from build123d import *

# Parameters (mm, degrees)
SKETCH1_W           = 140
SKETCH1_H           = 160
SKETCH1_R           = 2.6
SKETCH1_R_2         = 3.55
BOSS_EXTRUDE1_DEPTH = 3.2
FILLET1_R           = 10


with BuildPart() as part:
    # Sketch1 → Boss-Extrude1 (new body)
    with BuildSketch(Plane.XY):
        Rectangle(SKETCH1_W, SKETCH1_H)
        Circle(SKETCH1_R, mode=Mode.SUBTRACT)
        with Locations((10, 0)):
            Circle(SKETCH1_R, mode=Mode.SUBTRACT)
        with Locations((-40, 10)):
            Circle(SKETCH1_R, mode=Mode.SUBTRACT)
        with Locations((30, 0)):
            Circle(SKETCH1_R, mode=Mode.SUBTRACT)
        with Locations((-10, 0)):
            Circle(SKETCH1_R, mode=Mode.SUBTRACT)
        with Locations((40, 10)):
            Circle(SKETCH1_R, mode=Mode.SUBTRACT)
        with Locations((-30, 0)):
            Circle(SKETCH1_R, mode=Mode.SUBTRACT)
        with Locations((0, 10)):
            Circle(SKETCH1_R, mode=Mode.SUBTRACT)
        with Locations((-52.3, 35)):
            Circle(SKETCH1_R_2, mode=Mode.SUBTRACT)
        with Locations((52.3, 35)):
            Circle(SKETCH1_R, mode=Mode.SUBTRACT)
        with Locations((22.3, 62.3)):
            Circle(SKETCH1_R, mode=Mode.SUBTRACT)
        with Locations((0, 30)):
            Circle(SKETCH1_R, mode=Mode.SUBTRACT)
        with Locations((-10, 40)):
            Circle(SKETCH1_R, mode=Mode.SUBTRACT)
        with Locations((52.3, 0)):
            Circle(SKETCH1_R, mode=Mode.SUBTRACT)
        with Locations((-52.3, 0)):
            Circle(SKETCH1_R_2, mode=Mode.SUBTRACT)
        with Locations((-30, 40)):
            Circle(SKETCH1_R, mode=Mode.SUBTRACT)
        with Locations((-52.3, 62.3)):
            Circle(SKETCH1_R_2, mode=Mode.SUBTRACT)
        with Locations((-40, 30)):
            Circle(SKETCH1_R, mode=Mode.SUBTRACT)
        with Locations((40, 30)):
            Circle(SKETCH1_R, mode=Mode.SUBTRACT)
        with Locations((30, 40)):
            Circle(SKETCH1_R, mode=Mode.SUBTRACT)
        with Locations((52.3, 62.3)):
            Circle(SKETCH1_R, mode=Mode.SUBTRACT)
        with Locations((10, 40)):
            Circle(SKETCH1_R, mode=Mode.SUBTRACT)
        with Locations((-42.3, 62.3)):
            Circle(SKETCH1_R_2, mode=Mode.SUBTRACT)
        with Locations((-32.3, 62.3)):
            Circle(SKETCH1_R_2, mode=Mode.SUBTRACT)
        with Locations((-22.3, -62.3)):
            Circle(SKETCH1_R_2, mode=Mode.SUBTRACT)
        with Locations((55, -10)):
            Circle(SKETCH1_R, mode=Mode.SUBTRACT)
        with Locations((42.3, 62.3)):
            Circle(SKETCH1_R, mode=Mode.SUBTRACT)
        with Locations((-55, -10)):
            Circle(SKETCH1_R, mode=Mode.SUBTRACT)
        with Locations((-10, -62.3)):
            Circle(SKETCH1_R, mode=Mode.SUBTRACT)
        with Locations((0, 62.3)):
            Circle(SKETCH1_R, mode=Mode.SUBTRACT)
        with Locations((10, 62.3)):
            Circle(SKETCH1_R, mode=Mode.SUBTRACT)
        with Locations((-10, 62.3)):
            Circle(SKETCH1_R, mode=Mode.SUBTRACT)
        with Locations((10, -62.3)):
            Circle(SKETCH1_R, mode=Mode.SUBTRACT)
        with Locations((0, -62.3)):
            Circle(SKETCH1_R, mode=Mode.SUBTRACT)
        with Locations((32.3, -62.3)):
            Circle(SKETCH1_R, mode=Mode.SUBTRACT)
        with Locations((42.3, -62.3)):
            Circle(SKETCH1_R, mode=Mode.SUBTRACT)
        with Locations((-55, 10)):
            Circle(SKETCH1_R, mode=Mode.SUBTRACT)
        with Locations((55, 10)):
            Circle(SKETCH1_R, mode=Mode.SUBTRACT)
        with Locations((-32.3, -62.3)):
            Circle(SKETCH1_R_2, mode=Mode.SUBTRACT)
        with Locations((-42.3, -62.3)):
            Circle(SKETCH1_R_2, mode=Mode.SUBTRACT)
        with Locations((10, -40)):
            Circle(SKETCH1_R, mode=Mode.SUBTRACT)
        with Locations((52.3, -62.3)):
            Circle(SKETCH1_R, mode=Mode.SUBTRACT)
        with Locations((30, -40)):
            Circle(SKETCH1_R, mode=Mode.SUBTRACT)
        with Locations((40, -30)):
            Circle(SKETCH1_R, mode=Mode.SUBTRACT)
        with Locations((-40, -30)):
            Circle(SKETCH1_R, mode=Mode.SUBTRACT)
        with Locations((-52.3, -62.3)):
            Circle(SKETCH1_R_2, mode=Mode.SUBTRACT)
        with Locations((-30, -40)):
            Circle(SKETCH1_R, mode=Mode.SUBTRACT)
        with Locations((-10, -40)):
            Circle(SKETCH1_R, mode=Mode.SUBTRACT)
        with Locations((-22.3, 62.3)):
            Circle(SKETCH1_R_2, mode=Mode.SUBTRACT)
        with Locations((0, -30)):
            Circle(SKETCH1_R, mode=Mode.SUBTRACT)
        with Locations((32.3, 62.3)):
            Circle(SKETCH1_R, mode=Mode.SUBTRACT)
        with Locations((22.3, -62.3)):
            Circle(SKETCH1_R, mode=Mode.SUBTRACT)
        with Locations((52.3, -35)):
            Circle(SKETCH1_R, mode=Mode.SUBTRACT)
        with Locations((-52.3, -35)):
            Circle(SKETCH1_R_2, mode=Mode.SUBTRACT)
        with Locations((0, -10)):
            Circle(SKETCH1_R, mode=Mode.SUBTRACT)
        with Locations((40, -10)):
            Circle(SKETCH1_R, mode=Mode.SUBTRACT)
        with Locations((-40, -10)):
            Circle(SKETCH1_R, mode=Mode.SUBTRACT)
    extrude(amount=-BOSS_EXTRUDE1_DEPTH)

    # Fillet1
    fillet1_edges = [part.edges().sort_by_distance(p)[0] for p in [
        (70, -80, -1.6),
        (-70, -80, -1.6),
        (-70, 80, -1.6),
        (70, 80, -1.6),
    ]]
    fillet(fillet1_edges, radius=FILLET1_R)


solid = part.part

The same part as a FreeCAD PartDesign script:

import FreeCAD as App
import Part
import Sketcher
from FreeCAD import Vector


def edges_at(feature, points):
    """Names of the edges that pass closest to the given points."""
    edges = feature.Shape.Edges
    near = lambda p: min(range(len(edges)), key=lambda i: edges[i].distToShape(Part.Vertex(*p))[0])
    return sorted({f"Edge{near(p) + 1}" for p in points})


def add_polygon(sketch, points):
    """Adds a closed chain of lines whose ends are joined by coincident constraints."""
    first, n = sketch.GeometryCount, len(points)
    for a, b in zip(points, points[1:] + points[:1]):
        sketch.addGeometry(Part.LineSegment(App.Vector(*a, 0), App.Vector(*b, 0)), False)
    for i in range(n):
        sketch.addConstraint(Sketcher.Constraint("Coincident", first + i, 2, first + (i + 1) % n, 1))

doc = App.newDocument("Part")
body = doc.addObject("PartDesign::Body", "Body")

sketch1 = body.newObject("Sketcher::SketchObject", "Sketch")
sketch1.AttachmentSupport = (doc.getObject("XY_Plane"), [""])
sketch1.MapMode = "FlatFace"
add_polygon(sketch1, [(-70, 80), (-70, -80), (70, -80), (70, 80)])
sketch1.addGeometry(Part.Circle(Vector(-52.3, -62.3, 0), Vector(0, 0, 1), 3.5), False)
sketch1.addGeometry(Part.Circle(Vector(-42.3, -62.3, 0), Vector(0, 0, 1), 3.5), False)
sketch1.addGeometry(Part.Circle(Vector(-32.3, -62.3, 0), Vector(0, 0, 1), 3.5), False)
sketch1.addGeometry(Part.Circle(Vector(-52.3, -35, 0), Vector(0, 0, 1), 3.5), False)
sketch1.addGeometry(Part.Circle(Vector(-30, -40, 0), Vector(0, 0, 1), 2.6), False)
sketch1.addGeometry(Part.Circle(Vector(-22.3, -62.3, 0), Vector(0, 0, 1), 3.5), False)
sketch1.addGeometry(Part.Circle(Vector(-10, -62.3, 0), Vector(0, 0, 1), 2.6), False)
sketch1.addGeometry(Part.Circle(Vector(-10, -40, 0), Vector(0, 0, 1), 2.6), False)
sketch1.addGeometry(Part.Circle(Vector(-40, -30, 0), Vector(0, 0, 1), 2.6), False)
sketch1.addGeometry(Part.Circle(Vector(-55, -10, 0), Vector(0, 0, 1), 2.6), False)
sketch1.addGeometry(Part.Circle(Vector(-40, -10, 0), Vector(0, 0, 1), 2.6), False)
sketch1.addGeometry(Part.Circle(Vector(0, -62.3, 0), Vector(0, 0, 1), 2.6), False)
sketch1.addGeometry(Part.Circle(Vector(10, -62.3, 0), Vector(0, 0, 1), 2.6), False)
sketch1.addGeometry(Part.Circle(Vector(22.3, -62.3, 0), Vector(0, 0, 1), 2.6), False)
sketch1.addGeometry(Part.Circle(Vector(10, -40, 0), Vector(0, 0, 1), 2.6), False)
sketch1.addGeometry(Part.Circle(Vector(32.3, -62.3, 0), Vector(0, 0, 1), 2.6), False)
sketch1.addGeometry(Part.Circle(Vector(42.3, -62.3, 0), Vector(0, 0, 1), 2.6), False)
sketch1.addGeometry(Part.Circle(Vector(52.3, -62.3, 0), Vector(0, 0, 1), 2.6), False)
sketch1.addGeometry(Part.Circle(Vector(30, -40, 0), Vector(0, 0, 1), 2.6), False)
sketch1.addGeometry(Part.Circle(Vector(52.3, -35, 0), Vector(0, 0, 1), 2.6), False)
sketch1.addGeometry(Part.Circle(Vector(0, -30, 0), Vector(0, 0, 1), 2.6), False)
sketch1.addGeometry(Part.Circle(Vector(0, -10, 0), Vector(0, 0, 1), 2.6), False)
sketch1.addGeometry(Part.Circle(Vector(40, -30, 0), Vector(0, 0, 1), 2.6), False)
sketch1.addGeometry(Part.Circle(Vector(40, -10, 0), Vector(0, 0, 1), 2.6), False)
sketch1.addGeometry(Part.Circle(Vector(55, -10, 0), Vector(0, 0, 1), 2.6), False)
sketch1.addGeometry(Part.Circle(Vector(-52.3, 0, 0), Vector(0, 0, 1), 3.5), False)
sketch1.addGeometry(Part.Circle(Vector(-55, 10, 0), Vector(0, 0, 1), 2.6), False)
sketch1.addGeometry(Part.Circle(Vector(-30, 0, 0), Vector(0, 0, 1), 2.6), False)
sketch1.addGeometry(Part.Circle(Vector(-40, 10, 0), Vector(0, 0, 1), 2.6), False)
sketch1.addGeometry(Part.Circle(Vector(-40, 30, 0), Vector(0, 0, 1), 2.6), False)
sketch1.addGeometry(Part.Circle(Vector(-10, 0, 0), Vector(0, 0, 1), 2.6), False)
sketch1.addGeometry(Part.Circle(Vector(-52.3, 35, 0), Vector(0, 0, 1), 3.5), False)
sketch1.addGeometry(Part.Circle(Vector(-30, 40, 0), Vector(0, 0, 1), 2.6), False)
sketch1.addGeometry(Part.Circle(Vector(-52.3, 62.3, 0), Vector(0, 0, 1), 3.5), False)
sketch1.addGeometry(Part.Circle(Vector(-42.3, 62.3, 0), Vector(0, 0, 1), 3.5), False)
sketch1.addGeometry(Part.Circle(Vector(-32.3, 62.3, 0), Vector(0, 0, 1), 3.5), False)
sketch1.addGeometry(Part.Circle(Vector(-10, 40, 0), Vector(0, 0, 1), 2.6), False)
sketch1.addGeometry(Part.Circle(Vector(-22.3, 62.3, 0), Vector(0, 0, 1), 3.5), False)
sketch1.addGeometry(Part.Circle(Vector(-10, 62.3, 0), Vector(0, 0, 1), 2.6), False)
sketch1.addGeometry(Part.Circle(Vector(0, 0, 0), Vector(0, 0, 1), 2.6), False)
sketch1.addGeometry(Part.Circle(Vector(10, 0, 0), Vector(0, 0, 1), 2.6), False)
sketch1.addGeometry(Part.Circle(Vector(0, 10, 0), Vector(0, 0, 1), 2.6), False)
sketch1.addGeometry(Part.Circle(Vector(0, 30, 0), Vector(0, 0, 1), 2.6), False)
sketch1.addGeometry(Part.Circle(Vector(30, 0, 0), Vector(0, 0, 1), 2.6), False)
sketch1.addGeometry(Part.Circle(Vector(40, 10, 0), Vector(0, 0, 1), 2.6), False)
sketch1.addGeometry(Part.Circle(Vector(52.3, 0, 0), Vector(0, 0, 1), 2.6), False)
sketch1.addGeometry(Part.Circle(Vector(55, 10, 0), Vector(0, 0, 1), 2.6), False)
sketch1.addGeometry(Part.Circle(Vector(40, 30, 0), Vector(0, 0, 1), 2.6), False)
sketch1.addGeometry(Part.Circle(Vector(10, 40, 0), Vector(0, 0, 1), 2.6), False)
sketch1.addGeometry(Part.Circle(Vector(0, 62.3, 0), Vector(0, 0, 1), 2.6), False)
sketch1.addGeometry(Part.Circle(Vector(10, 62.3, 0), Vector(0, 0, 1), 2.6), False)
sketch1.addGeometry(Part.Circle(Vector(22.3, 62.3, 0), Vector(0, 0, 1), 2.6), False)
sketch1.addGeometry(Part.Circle(Vector(30, 40, 0), Vector(0, 0, 1), 2.6), False)
sketch1.addGeometry(Part.Circle(Vector(52.3, 35, 0), Vector(0, 0, 1), 2.6), False)
sketch1.addGeometry(Part.Circle(Vector(32.3, 62.3, 0), Vector(0, 0, 1), 2.6), False)
sketch1.addGeometry(Part.Circle(Vector(42.3, 62.3, 0), Vector(0, 0, 1), 2.6), False)
sketch1.addGeometry(Part.Circle(Vector(52.3, 62.3, 0), Vector(0, 0, 1), 2.6), False)
sketch1.addConstraint(Sketcher.Constraint("Vertical", 0))
sketch1.addConstraint(Sketcher.Constraint("Horizontal", 1))
sketch1.addConstraint(Sketcher.Constraint("Vertical", 2))
sketch1.addConstraint(Sketcher.Constraint("Horizontal", 3))
sketch1.addConstraint(Sketcher.Constraint("Coincident", 43, 3, -1, 1))
sketch1.addConstraint(Sketcher.Constraint("Equal", 4, 5))
sketch1.addConstraint(Sketcher.Constraint("Equal", 5, 6))
sketch1.addConstraint(Sketcher.Constraint("Equal", 6, 7))
sketch1.addConstraint(Sketcher.Constraint("Equal", 7, 9))
sketch1.addConstraint(Sketcher.Constraint("Equal", 8, 10))
sketch1.addConstraint(Sketcher.Constraint("Equal", 10, 11))
sketch1.addConstraint(Sketcher.Constraint("Equal", 11, 12))
sketch1.addConstraint(Sketcher.Constraint("Equal", 12, 13))
sketch1.addConstraint(Sketcher.Constraint("Equal", 13, 14))
sketch1.addConstraint(Sketcher.Constraint("Equal", 14, 15))
sketch1.addConstraint(Sketcher.Constraint("Equal", 15, 16))
sketch1.addConstraint(Sketcher.Constraint("Equal", 16, 17))
sketch1.addConstraint(Sketcher.Constraint("Equal", 17, 18))
sketch1.addConstraint(Sketcher.Constraint("Equal", 18, 19))
sketch1.addConstraint(Sketcher.Constraint("Equal", 19, 20))
sketch1.addConstraint(Sketcher.Constraint("Equal", 20, 21))
sketch1.addConstraint(Sketcher.Constraint("Equal", 21, 22))
sketch1.addConstraint(Sketcher.Constraint("Equal", 22, 23))
sketch1.addConstraint(Sketcher.Constraint("Equal", 23, 24))
sketch1.addConstraint(Sketcher.Constraint("Equal", 24, 25))
sketch1.addConstraint(Sketcher.Constraint("Equal", 25, 26))
sketch1.addConstraint(Sketcher.Constraint("Equal", 26, 27))
sketch1.addConstraint(Sketcher.Constraint("Equal", 27, 28))
sketch1.addConstraint(Sketcher.Constraint("Equal", 9, 29))
sketch1.addConstraint(Sketcher.Constraint("Equal", 28, 30))
sketch1.addConstraint(Sketcher.Constraint("Equal", 30, 31))
sketch1.addConstraint(Sketcher.Constraint("Equal", 31, 32))
sketch1.addConstraint(Sketcher.Constraint("Equal", 32, 33))
sketch1.addConstraint(Sketcher.Constraint("Equal", 33, 34))
sketch1.addConstraint(Sketcher.Constraint("Equal", 29, 35))
sketch1.addConstraint(Sketcher.Constraint("Equal", 34, 36))
sketch1.addConstraint(Sketcher.Constraint("Equal", 35, 37))
sketch1.addConstraint(Sketcher.Constraint("Equal", 37, 38))
sketch1.addConstraint(Sketcher.Constraint("Equal", 38, 39))
sketch1.addConstraint(Sketcher.Constraint("Equal", 36, 40))
sketch1.addConstraint(Sketcher.Constraint("Equal", 39, 41))
sketch1.addConstraint(Sketcher.Constraint("Equal", 40, 42))
sketch1.addConstraint(Sketcher.Constraint("Equal", 42, 43))
sketch1.addConstraint(Sketcher.Constraint("Equal", 43, 44))
sketch1.addConstraint(Sketcher.Constraint("Equal", 44, 45))
sketch1.addConstraint(Sketcher.Constraint("Equal", 45, 46))
sketch1.addConstraint(Sketcher.Constraint("Equal", 46, 47))
sketch1.addConstraint(Sketcher.Constraint("Equal", 47, 48))
sketch1.addConstraint(Sketcher.Constraint("Equal", 48, 49))
sketch1.addConstraint(Sketcher.Constraint("Equal", 49, 50))
sketch1.addConstraint(Sketcher.Constraint("Equal", 50, 51))
sketch1.addConstraint(Sketcher.Constraint("Equal", 51, 52))
sketch1.addConstraint(Sketcher.Constraint("Equal", 52, 53))
sketch1.addConstraint(Sketcher.Constraint("Equal", 53, 54))
sketch1.addConstraint(Sketcher.Constraint("Equal", 54, 55))
sketch1.addConstraint(Sketcher.Constraint("Equal", 55, 56))
sketch1.addConstraint(Sketcher.Constraint("Equal", 56, 57))
sketch1.addConstraint(Sketcher.Constraint("Equal", 57, 58))
sketch1.addConstraint(Sketcher.Constraint("Equal", 58, 59))
sketch1.addConstraint(Sketcher.Constraint("Equal", 59, 60))
sketch1.addConstraint(Sketcher.Constraint("Symmetric", 28, 3, 30, 3, -1, 1))
sketch1.addConstraint(Sketcher.Constraint("Symmetric", 27, 3, 32, 3, -1, 1))
sketch1.addConstraint(Sketcher.Constraint("Symmetric", 26, 3, 33, 3, -1, 1))
sketch1.addConstraint(Sketcher.Constraint("Symmetric", 23, 3, 35, 3, -1, 1))
sketch1.addConstraint(Sketcher.Constraint("Symmetric", 22, 3, 36, 3, -1, 1))
sketch1.addConstraint(Sketcher.Constraint("Symmetric", 21, 3, 37, 3, -1, 1))
sketch1.addConstraint(Sketcher.Constraint("Symmetric", 20, 3, 38, 3, -1, 1))
sketch1.addConstraint(Sketcher.Constraint("Symmetric", 19, 3, 39, 3, -1, 1))
sketch1.addConstraint(Sketcher.Constraint("Symmetric", 18, 3, 40, 3, -1, 1))
sketch1.addConstraint(Sketcher.Constraint("Symmetric", 17, 3, 41, 3, -1, 1))
sketch1.addConstraint(Sketcher.Constraint("Symmetric", 16, 3, 42, 3, -1, 1))
sketch1.addConstraint(Sketcher.Constraint("Symmetric", 34, 3, 44, 3, -1, 1))
sketch1.addConstraint(Sketcher.Constraint("Symmetric", 25, 3, 45, 3, -1, 1))
sketch1.addConstraint(Sketcher.Constraint("Symmetric", 24, 3, 46, 3, -1, 1))
sketch1.addConstraint(Sketcher.Constraint("Symmetric", 31, 3, 47, 3, -1, 1))
sketch1.addConstraint(Sketcher.Constraint("Symmetric", 14, 3, 48, 3, -1, 1))
sketch1.addConstraint(Sketcher.Constraint("Symmetric", 29, 3, 49, 3, -1, 1))
sketch1.addConstraint(Sketcher.Constraint("Symmetric", 13, 3, 50, 3, -1, 1))
sketch1.addConstraint(Sketcher.Constraint("Symmetric", 12, 3, 51, 3, -1, 1))
sketch1.addConstraint(Sketcher.Constraint("Symmetric", 11, 3, 52, 3, -1, 1))
sketch1.addConstraint(Sketcher.Constraint("Symmetric", 15, 3, 53, 3, -1, 1))
sketch1.addConstraint(Sketcher.Constraint("Symmetric", 10, 3, 54, 3, -1, 1))
sketch1.addConstraint(Sketcher.Constraint("Symmetric", 9, 3, 55, 3, -1, 1))
sketch1.addConstraint(Sketcher.Constraint("Symmetric", 8, 3, 56, 3, -1, 1))
sketch1.addConstraint(Sketcher.Constraint("Symmetric", 7, 3, 57, 3, -1, 1))
sketch1.addConstraint(Sketcher.Constraint("Symmetric", 6, 3, 58, 3, -1, 1))
sketch1.addConstraint(Sketcher.Constraint("Symmetric", 5, 3, 59, 3, -1, 1))
sketch1.addConstraint(Sketcher.Constraint("Symmetric", 4, 3, 60, 3, -1, 1))
sketch1.addConstraint(Sketcher.Constraint("Symmetric", 0, 2, 2, 2, -1, 1))
sketch1.addConstraint(Sketcher.Constraint("Symmetric", 10, 3, 16, 3, -2))
sketch1.addConstraint(Sketcher.Constraint("Symmetric", 9, 3, 17, 3, -2))
sketch1.addConstraint(Sketcher.Constraint("Symmetric", 11, 3, 18, 3, -2))
sketch1.addConstraint(Sketcher.Constraint("Symmetric", 6, 3, 19, 3, -2))
sketch1.addConstraint(Sketcher.Constraint("Symmetric", 5, 3, 20, 3, -2))
sketch1.addConstraint(Sketcher.Constraint("Symmetric", 4, 3, 21, 3, -2))
sketch1.addConstraint(Sketcher.Constraint("Symmetric", 8, 3, 22, 3, -2))
sketch1.addConstraint(Sketcher.Constraint("Symmetric", 7, 3, 23, 3, -2))
sketch1.addConstraint(Sketcher.Constraint("Symmetric", 12, 3, 26, 3, -2))
sketch1.addConstraint(Sketcher.Constraint("Symmetric", 14, 3, 27, 3, -2))
sketch1.addConstraint(Sketcher.Constraint("Symmetric", 13, 3, 28, 3, -2))
sketch1.addConstraint(Sketcher.Constraint("PointOnObject", 15, 3, -2))
sketch1.addConstraint(Sketcher.Constraint("PointOnObject", 24, 3, -2))
sketch1.addConstraint(Sketcher.Constraint("PointOnObject", 25, 3, -2))
sketch1.addConstraint(Sketcher.Constraint("PointOnObject", 29, 3, -1))
sketch1.addConstraint(Sketcher.Constraint("PointOnObject", 31, 3, -1))
sketch1.addConstraint(Sketcher.Constraint("PointOnObject", 34, 3, -1))
sketch1.addConstraint(Sketcher.Constraint("Horizontal", 4, 3, 5, 3))
sketch1.addConstraint(Sketcher.Constraint("Horizontal", 5, 3, 6, 3))
sketch1.addConstraint(Sketcher.Constraint("Horizontal", 6, 3, 9, 3))
sketch1.addConstraint(Sketcher.Constraint("Horizontal", 9, 3, 10, 3))
sketch1.addConstraint(Sketcher.Constraint("Horizontal", 8, 3, 11, 3))
sketch1.addConstraint(Sketcher.Constraint("Horizontal", 13, 3, 14, 3))
sketch1.addConstraint(Sketcher.Constraint("Horizontal", 10, 3, 15, 3))
sketch1.addConstraint(Sketcher.Constraint("Horizontal", 12, 3, 24, 3))
sketch1.addConstraint(Sketcher.Constraint("Horizontal", 14, 3, 25, 3))
sketch1.addConstraint(Sketcher.Constraint("Vertical", 4, 3, 7, 3))
sketch1.addConstraint(Sketcher.Constraint("Vertical", 10, 3, 11, 3))
sketch1.addConstraint(Sketcher.Constraint("Vertical", 12, 3, 14, 3))
sketch1.addConstraint(Sketcher.Constraint("Vertical", 7, 3, 29, 3))
sketch1.addConstraint(Sketcher.Constraint("Vertical", 8, 3, 31, 3))
sketch1.addConstraint(Sketcher.Constraint("Vertical", 11, 3, 34, 3))
sketch1.addConstraint(Sketcher.Constraint("Diameter", 4, 7.1))
sketch1.addConstraint(Sketcher.Constraint("Diameter", 8, 5.2))
sketch1.addConstraint(Sketcher.Constraint("DistanceX", 1, 1, 1, 2, 140.0))
sketch1.addConstraint(Sketcher.Constraint("DistanceY", 0, 2, 0, 1, 160.0))
sketch1.addConstraint(Sketcher.Constraint("DistanceY", 7, 3, -1, 1, 35.0))
sketch1.addConstraint(Sketcher.Constraint("DistanceX", 8, 3, -1, 1, 30.0))
sketch1.addConstraint(Sketcher.Constraint("DistanceY", 8, 3, -1, 1, 40.0))
sketch1.addConstraint(Sketcher.Constraint("DistanceX", 10, 3, -1, 1, 10.0))
sketch1.addConstraint(Sketcher.Constraint("DistanceX", 12, 3, -1, 1, 40.0))
sketch1.addConstraint(Sketcher.Constraint("DistanceY", 12, 3, -1, 1, 30.0))
sketch1.addConstraint(Sketcher.Constraint("DistanceX", 13, 3, -1, 1, 55.0))
sketch1.addConstraint(Sketcher.Constraint("DistanceY", 13, 3, -1, 1, 10.0))
sketch1.addConstraint(Sketcher.Constraint("DistanceX", 4, 3, -1, 1, 52.3))
sketch1.addConstraint(Sketcher.Constraint("DistanceY", 4, 3, -1, 1, 62.3))
sketch1.addConstraint(Sketcher.Constraint("DistanceX", 5, 3, -1, 1, 42.3))
sketch1.addConstraint(Sketcher.Constraint("DistanceX", 6, 3, -1, 1, 32.3))
sketch1.addConstraint(Sketcher.Constraint("DistanceX", 9, 3, -1, 1, 22.3))
pad1 = body.newObject("PartDesign::Pad", "Pad")
pad1.Profile = sketch1
pad1.Length = 3.2
pad1.Reversed = True
doc.recompute()

fillet = body.newObject("PartDesign::Fillet", "Fillet")
fillet.Base = (pad1, edges_at(pad1, [
    (70, -80, -1.6),
    (-70, -80, -1.6),
    (-70, 80, -1.6),
    (70, 80, -1.6),
]))
fillet.Radius = 10

doc.recompute()
